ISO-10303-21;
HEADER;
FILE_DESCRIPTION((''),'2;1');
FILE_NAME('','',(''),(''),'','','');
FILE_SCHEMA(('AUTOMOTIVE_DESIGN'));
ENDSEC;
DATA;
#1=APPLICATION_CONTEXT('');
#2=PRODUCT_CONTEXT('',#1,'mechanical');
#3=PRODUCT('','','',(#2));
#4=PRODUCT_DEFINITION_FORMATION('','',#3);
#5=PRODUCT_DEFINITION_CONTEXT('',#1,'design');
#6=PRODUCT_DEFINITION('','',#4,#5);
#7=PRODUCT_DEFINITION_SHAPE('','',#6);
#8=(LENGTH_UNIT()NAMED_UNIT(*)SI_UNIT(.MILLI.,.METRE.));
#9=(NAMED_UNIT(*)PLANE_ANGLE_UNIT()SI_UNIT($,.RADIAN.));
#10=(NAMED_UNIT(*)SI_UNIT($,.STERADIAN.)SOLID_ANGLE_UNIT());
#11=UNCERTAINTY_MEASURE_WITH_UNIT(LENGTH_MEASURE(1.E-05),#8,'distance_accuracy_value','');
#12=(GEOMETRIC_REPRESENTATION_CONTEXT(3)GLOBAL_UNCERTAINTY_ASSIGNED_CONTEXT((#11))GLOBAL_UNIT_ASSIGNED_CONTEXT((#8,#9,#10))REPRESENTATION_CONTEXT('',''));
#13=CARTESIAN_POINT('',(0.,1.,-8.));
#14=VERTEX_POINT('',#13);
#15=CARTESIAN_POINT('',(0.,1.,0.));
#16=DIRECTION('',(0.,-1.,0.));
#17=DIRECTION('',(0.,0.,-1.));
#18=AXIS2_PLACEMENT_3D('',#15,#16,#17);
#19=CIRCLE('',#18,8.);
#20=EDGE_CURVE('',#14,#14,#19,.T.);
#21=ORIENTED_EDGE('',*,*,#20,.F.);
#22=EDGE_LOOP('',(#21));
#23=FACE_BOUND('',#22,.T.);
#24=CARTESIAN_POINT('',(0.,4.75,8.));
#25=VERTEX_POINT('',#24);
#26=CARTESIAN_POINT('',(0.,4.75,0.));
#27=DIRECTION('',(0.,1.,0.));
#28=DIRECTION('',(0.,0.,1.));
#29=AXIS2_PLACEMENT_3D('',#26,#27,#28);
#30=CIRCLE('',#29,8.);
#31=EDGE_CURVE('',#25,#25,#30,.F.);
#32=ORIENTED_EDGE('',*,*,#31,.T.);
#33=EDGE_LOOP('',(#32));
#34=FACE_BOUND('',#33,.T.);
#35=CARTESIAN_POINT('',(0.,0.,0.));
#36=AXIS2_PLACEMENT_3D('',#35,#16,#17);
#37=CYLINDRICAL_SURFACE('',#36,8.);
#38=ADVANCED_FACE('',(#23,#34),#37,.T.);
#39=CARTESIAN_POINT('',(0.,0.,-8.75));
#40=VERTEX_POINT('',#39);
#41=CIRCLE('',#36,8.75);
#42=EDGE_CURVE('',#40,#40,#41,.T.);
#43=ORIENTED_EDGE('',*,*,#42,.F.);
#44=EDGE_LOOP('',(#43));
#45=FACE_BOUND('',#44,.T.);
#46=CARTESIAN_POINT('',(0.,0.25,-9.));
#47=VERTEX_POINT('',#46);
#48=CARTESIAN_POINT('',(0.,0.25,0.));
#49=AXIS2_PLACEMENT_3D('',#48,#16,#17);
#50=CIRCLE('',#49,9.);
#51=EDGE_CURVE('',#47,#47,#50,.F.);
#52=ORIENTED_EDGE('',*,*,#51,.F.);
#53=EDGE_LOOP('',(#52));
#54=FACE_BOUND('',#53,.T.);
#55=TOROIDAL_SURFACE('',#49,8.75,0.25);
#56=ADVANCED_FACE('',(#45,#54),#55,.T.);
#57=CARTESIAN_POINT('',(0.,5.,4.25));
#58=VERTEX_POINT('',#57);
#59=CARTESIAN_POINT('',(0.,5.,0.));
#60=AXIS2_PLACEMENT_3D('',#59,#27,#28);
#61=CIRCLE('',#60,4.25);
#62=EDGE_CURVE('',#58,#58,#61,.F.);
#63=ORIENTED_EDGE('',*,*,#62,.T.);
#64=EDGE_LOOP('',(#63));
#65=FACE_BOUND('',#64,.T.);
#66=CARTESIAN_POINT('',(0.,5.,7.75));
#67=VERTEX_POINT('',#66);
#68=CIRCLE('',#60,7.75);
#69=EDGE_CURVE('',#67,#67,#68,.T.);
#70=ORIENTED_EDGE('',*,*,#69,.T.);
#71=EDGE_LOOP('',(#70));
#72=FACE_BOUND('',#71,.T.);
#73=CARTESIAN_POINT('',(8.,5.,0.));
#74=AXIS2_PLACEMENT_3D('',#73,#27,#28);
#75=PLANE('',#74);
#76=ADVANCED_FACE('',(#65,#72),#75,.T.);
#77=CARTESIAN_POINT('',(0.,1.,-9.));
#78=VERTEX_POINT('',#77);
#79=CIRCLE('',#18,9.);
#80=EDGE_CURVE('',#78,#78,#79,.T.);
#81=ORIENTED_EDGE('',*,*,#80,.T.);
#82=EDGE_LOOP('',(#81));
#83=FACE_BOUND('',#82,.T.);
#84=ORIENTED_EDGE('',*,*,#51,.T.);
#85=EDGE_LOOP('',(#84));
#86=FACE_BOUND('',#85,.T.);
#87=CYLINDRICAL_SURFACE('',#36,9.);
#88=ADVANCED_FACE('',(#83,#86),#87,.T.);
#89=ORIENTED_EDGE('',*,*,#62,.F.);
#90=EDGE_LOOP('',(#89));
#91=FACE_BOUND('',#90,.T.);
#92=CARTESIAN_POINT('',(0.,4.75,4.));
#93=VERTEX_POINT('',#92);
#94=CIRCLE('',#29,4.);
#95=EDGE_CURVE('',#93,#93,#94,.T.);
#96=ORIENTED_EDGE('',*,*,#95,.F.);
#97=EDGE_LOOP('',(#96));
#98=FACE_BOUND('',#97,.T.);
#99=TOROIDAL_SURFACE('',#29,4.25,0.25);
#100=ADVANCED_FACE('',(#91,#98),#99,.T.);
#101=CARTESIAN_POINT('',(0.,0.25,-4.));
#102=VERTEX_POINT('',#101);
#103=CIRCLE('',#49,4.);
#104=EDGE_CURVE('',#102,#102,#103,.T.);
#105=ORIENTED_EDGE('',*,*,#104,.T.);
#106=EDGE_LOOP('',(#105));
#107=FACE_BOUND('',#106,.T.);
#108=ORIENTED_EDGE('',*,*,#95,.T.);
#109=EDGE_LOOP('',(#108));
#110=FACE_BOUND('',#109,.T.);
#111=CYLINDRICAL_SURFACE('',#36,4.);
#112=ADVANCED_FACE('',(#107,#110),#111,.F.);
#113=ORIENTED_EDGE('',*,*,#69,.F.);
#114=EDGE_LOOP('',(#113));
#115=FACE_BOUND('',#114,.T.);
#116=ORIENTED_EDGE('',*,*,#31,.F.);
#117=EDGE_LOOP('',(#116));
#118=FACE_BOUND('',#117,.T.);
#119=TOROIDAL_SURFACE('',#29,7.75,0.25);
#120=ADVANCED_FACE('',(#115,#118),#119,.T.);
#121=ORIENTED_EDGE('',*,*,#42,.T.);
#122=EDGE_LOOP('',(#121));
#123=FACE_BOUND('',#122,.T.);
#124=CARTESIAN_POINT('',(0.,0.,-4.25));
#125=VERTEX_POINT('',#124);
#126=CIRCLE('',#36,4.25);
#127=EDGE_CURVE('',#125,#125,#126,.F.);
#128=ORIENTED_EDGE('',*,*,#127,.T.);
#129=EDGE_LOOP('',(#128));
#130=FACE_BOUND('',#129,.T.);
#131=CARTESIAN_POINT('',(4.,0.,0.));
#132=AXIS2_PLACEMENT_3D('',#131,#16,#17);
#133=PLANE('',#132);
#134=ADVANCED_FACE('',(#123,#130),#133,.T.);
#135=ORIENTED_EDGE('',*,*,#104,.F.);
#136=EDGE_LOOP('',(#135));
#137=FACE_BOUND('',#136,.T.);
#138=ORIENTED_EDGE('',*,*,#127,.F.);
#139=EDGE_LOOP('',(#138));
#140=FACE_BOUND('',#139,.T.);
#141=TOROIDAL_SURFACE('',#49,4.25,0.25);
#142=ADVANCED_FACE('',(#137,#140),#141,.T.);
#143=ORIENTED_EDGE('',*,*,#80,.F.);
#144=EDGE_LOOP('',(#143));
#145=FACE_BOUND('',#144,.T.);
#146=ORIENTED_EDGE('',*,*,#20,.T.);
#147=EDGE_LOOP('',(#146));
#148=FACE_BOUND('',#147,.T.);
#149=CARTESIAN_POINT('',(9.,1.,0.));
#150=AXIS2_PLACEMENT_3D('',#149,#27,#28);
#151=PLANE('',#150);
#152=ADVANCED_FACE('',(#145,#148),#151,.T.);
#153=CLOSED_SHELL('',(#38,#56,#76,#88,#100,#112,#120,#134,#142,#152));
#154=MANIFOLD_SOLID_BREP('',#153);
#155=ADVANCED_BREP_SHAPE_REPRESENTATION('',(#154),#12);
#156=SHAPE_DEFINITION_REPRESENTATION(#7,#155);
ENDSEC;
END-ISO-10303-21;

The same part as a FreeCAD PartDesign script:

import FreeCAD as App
import Part
import Sketcher
Q = App.Units.Quantity


def edges_at(feature, points):
    """Names of the edges that pass closest to the given points."""
    edges = feature.Shape.Edges
    near = lambda p: min(range(len(edges)), key=lambda i: edges[i].distToShape(Part.Vertex(*p))[0])
    return sorted({f"Edge{near(p) + 1}" for p in points})

doc = App.newDocument("Part")
body = doc.addObject("PartDesign::Body", "Body")

# Sketch on XY plane
sketch1 = body.newObject("Sketcher::SketchObject", "Sketch")
sketch1.AttachmentSupport = (doc.getObject("XY_Plane"), [""])
sketch1.MapMode = "FlatFace"
sketch1.addGeometry([
    Part.LineSegment(App.Vector(4, 5, 0), App.Vector(4, 0, 0)),  # 0
    Part.LineSegment(App.Vector(4, 0, 0), App.Vector(9, 0, 0)),  # 1
    Part.LineSegment(App.Vector(9, 0, 0), App.Vector(9, 1, 0)),  # 2
    Part.LineSegment(App.Vector(9, 1, 0), App.Vector(8, 1, 0)),  # 3
    Part.LineSegment(App.Vector(8, 1, 0), App.Vector(8, 5, 0)),  # 4
    Part.LineSegment(App.Vector(8, 5, 0), App.Vector(4, 5, 0)),  # 5
], False)
sketch1.addConstraint([
    Sketcher.Constraint("Coincident", 0, 2, 1, 1),
    Sketcher.Constraint("Coincident", 1, 2, 2, 1),
    Sketcher.Constraint("Coincident", 2, 2, 3, 1),
    Sketcher.Constraint("Coincident", 3, 2, 4, 1),
    Sketcher.Constraint("Coincident", 4, 2, 5, 1),
    Sketcher.Constraint("Coincident", 5, 2, 0, 1),
    Sketcher.Constraint("Vertical", 0),
    Sketcher.Constraint("Horizontal", 1),
    Sketcher.Constraint("Vertical", 2),
    Sketcher.Constraint("Horizontal", 3),
    Sketcher.Constraint("Vertical", 4),
    Sketcher.Constraint("Horizontal", 5),
    Sketcher.Constraint("PointOnObject", 0, 2, -1),
    Sketcher.Constraint("Equal", 1, 0),
    Sketcher.Constraint("Equal", 3, 2),
    Sketcher.Constraint("DistanceX", 1, 1, 1, 2, Q("5 mm")),
    Sketcher.Constraint("DistanceX", 3, 2, 3, 1, Q("1 mm")),
    Sketcher.Constraint("DistanceX", -1, 1, 0, 2, Q("4 mm")),
])
revolution = body.newObject("PartDesign::Revolution", "Revolution")
revolution.Profile = sketch1
revolution.ReferenceAxis = (sketch1, ["V_Axis"])
revolution.Angle = 360
doc.recompute()

fillet = body.newObject("PartDesign::Fillet", "Fillet")
fillet.Base = (revolution, edges_at(revolution, [
    (0, 5, 8),
    (0, 0, 9),
    (0, 0, 4),
    (0, 5, 4),
]))
fillet.Radius = 0.25

doc.recompute()
